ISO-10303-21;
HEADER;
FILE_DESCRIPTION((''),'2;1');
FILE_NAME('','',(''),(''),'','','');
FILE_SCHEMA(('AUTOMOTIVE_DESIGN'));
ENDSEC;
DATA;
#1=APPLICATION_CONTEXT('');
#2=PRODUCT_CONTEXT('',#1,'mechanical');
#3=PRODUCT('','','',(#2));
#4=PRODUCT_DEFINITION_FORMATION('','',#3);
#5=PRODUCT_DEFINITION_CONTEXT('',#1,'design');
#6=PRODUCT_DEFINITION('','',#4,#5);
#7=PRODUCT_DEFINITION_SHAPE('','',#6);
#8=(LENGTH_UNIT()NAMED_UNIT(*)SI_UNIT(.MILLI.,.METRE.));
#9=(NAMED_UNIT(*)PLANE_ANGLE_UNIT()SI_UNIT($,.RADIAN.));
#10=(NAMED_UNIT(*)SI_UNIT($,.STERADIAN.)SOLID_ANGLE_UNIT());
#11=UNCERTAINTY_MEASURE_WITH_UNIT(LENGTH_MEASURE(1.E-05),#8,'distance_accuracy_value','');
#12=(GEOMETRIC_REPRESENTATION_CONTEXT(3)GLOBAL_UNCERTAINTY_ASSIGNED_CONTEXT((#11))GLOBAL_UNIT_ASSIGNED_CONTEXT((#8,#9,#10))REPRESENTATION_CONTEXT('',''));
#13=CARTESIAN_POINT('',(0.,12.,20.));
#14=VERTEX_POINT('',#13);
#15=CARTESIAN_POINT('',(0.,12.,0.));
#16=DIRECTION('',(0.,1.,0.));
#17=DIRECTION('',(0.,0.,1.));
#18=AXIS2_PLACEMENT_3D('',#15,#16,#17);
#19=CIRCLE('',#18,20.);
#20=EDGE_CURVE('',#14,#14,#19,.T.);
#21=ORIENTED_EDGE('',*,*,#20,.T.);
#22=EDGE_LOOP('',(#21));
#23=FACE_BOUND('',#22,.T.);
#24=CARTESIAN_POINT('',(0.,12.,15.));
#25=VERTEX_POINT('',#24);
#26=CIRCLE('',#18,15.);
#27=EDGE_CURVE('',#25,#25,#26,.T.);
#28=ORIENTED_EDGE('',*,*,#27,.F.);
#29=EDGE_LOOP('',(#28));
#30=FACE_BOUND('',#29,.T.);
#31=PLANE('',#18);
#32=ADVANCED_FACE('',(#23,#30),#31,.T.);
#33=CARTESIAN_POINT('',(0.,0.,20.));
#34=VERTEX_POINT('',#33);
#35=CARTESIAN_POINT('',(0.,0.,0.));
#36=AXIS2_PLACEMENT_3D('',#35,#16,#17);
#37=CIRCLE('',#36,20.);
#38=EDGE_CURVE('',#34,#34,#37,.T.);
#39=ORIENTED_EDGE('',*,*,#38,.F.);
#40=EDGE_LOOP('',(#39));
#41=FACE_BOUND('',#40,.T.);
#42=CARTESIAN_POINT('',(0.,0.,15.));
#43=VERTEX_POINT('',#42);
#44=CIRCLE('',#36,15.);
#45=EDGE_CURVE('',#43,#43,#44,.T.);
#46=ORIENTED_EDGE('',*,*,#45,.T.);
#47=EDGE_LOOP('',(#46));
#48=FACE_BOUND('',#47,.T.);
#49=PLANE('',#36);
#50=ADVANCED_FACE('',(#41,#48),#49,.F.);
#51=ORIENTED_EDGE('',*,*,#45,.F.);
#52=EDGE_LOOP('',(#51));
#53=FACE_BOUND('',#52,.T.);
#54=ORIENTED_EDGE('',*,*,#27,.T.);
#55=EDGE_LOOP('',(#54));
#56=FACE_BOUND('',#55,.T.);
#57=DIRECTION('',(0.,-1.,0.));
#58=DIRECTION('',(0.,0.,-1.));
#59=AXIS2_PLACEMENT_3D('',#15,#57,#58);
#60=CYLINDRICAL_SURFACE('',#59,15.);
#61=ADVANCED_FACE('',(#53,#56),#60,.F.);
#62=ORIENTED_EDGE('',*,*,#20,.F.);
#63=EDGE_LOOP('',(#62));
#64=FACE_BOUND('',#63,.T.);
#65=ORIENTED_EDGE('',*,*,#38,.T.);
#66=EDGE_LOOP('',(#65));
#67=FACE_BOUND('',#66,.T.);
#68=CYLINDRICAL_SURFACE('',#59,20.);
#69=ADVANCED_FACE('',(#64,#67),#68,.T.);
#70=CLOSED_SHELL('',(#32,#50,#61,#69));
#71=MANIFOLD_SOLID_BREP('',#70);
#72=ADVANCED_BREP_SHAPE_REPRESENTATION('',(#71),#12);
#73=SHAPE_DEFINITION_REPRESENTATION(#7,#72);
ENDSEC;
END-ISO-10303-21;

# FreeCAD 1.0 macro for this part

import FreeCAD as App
import Part
import Sketcher
from FreeCAD import Vector

doc = App.newDocument("Part")
params = doc.addObject("Spreadsheet::Sheet", "Params")
for row, (alias, value) in enumerate([
    ("sketch1_diameter", "40 mm"),
    ("sketch1_diameter2", "30 mm"),
    ("pad1_length", "12 mm"),
], start=1):
    params.set(f"A{row}", alias)
    params.set(f"B{row}", "=" + value)
    params.setAlias(f"B{row}", alias)

body = doc.addObject("PartDesign::Body", "Body")

sketch1 = body.newObject("Sketcher::SketchObject", "Sketch")
sketch1.AttachmentSupport = (doc.getObject("XZ_Plane"), [""])
sketch1.MapMode = "FlatFace"
sketch1.addGeometry([
    Part.Circle(Vector(0, 0, 0), Vector(0, 0, 1), 20),
    Part.Circle(Vector(0, 0, 0), Vector(0, 0, 1), 15),
], False)
sketch1.addConstraint([
    Sketcher.Constraint("Coincident", 0, 3, -1, 1),
    Sketcher.Constraint("Coincident", 1, 3, -1, 1),
    Sketcher.Constraint("Diameter", 0, 40.0),
    Sketcher.Constraint("Diameter", 1, 30.0),
])
sketch1.setExpression("Constraints[2]", "Params.sketch1_diameter")
sketch1.setExpression("Constraints[3]", "Params.sketch1_diameter2")
pad1 = body.newObject("PartDesign::Pad", "Pad")
pad1.Profile = sketch1
pad1.setExpression("Length", "Params.pad1_length")
pad1.Reversed = True

doc.recompute()
